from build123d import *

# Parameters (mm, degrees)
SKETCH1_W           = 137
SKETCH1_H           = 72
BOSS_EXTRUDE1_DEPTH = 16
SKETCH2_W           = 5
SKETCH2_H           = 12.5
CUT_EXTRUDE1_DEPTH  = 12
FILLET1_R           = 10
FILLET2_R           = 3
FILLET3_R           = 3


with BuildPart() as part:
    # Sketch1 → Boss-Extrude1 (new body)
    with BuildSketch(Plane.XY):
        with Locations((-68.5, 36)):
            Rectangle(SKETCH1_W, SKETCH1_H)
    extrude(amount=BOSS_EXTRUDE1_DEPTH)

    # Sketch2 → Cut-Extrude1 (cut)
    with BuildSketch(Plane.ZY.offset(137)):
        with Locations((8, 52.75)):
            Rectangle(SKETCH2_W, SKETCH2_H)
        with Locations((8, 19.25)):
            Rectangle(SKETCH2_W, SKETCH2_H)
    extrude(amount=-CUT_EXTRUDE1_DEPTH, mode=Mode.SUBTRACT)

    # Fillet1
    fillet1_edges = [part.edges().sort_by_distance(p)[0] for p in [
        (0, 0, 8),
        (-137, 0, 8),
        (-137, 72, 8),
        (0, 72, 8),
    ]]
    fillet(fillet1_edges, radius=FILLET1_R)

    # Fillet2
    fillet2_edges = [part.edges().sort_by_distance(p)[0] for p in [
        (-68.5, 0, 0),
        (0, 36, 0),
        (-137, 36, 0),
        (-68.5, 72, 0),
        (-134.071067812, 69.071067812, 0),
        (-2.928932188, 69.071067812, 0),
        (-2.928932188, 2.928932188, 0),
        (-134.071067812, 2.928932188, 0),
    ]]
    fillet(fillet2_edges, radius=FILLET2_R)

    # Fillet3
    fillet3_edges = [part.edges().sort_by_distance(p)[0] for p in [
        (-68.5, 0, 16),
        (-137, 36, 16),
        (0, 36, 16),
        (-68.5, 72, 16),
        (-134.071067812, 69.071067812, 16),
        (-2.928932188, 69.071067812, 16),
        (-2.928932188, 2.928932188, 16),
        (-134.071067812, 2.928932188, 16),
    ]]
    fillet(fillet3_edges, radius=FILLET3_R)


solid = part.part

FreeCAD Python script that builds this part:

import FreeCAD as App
import Part
import Sketcher


def edges_at(feature, points):
    """Names of the edges that pass closest to the given points."""
    edges = feature.Shape.Edges
    near = lambda p: min(range(len(edges)), key=lambda i: edges[i].distToShape(Part.Vertex(*p))[0])
    return sorted({f"Edge{near(p) + 1}" for p in points})

doc = App.newDocument("Part")
body = doc.addObject("PartDesign::Body", "Body")

# Sketch on XY plane
sketch1 = doc.addObject("Sketcher::SketchObject", "Sketch")
body.addObject(sketch1)
sketch1.AttachmentSupport = (doc.XY_Plane, [""])
sketch1.MapMode = "FlatFace"
sketch1.addGeometry(Part.LineSegment(App.Vector(-137, 72, 0), App.Vector(-137, 0, 0)), False)
sketch1.addGeometry(Part.LineSegment(App.Vector(-137, 0, 0), App.Vector(0, 0, 0)), False)
sketch1.addGeometry(Part.LineSegment(App.Vector(0, 0, 0), App.Vector(0, 72, 0)), False)
sketch1.addGeometry(Part.LineSegment(App.Vector(0, 72, 0), App.Vector(-137, 72, 0)), False)
sketch1.addConstraint(Sketcher.Constraint("Coincident", 0, 2, 1, 1))
sketch1.addConstraint(Sketcher.Constraint("Coincident", 1, 2, 2, 1))
sketch1.addConstraint(Sketcher.Constraint("Coincident", 2, 2, 3, 1))
sketch1.addConstraint(Sketcher.Constraint("Coincident", 3, 2, 0, 1))
sketch1.addConstraint(Sketcher.Constraint("Vertical", 0))
sketch1.addConstraint(Sketcher.Constraint("Horizontal", 1))
sketch1.addConstraint(Sketcher.Constraint("Vertical", 2))
sketch1.addConstraint(Sketcher.Constraint("Horizontal", 3))
sketch1.addConstraint(Sketcher.Constraint("Coincident", 1, 2, -1, 1))
sketch1.addConstraint(Sketcher.Constraint("DistanceX", 1, 1, 1, 2, 137.0))
sketch1.addConstraint(Sketcher.Constraint("DistanceY", 0, 2, 0, 1, 72.0))
pad1 = doc.addObject("PartDesign::Pad", "Pad")
body.addObject(pad1)
pad1.Profile = sketch1
pad1.Length = 16

# Sketch on YZ plane
sketch2 = doc.addObject("Sketcher::SketchObject", "Sketch001")
body.addObject(sketch2)
sketch2.AttachmentSupport = (doc.YZ_Plane, [""])
sketch2.MapMode = "FlatFace"
sketch2.AttachmentOffset = App.Placement(App.Vector(0, 0, -137), App.Rotation())
sketch2.addGeometry(Part.LineSegment(App.Vector(59, 5.5, 0), App.Vector(46.5, 5.5, 0)), False)
sketch2.addGeometry(Part.LineSegment(App.Vector(46.5, 5.5, 0), App.Vector(46.5, 10.5, 0)), False)
sketch2.addGeometry(Part.LineSegment(App.Vector(46.5, 10.5, 0), App.Vector(59, 10.5, 0)), False)
sketch2.addGeometry(Part.LineSegment(App.Vector(59, 10.5, 0), App.Vector(59, 5.5, 0)), False)
sketch2.addGeometry(Part.LineSegment(App.Vector(25.5, 5.5, 0), App.Vector(13, 5.5, 0)), False)
sketch2.addGeometry(Part.LineSegment(App.Vector(13, 5.5, 0), App.Vector(13, 10.5, 0)), False)
sketch2.addGeometry(Part.LineSegment(App.Vector(13, 10.5, 0), App.Vector(25.5, 10.5, 0)), False)
sketch2.addGeometry(Part.LineSegment(App.Vector(25.5, 10.5, 0), App.Vector(25.5, 5.5, 0)), False)
sketch2.addConstraint(Sketcher.Constraint("Coincident", 0, 2, 1, 1))
sketch2.addConstraint(Sketcher.Constraint("Coincident", 1, 2, 2, 1))
sketch2.addConstraint(Sketcher.Constraint("Coincident", 2, 2, 3, 1))
sketch2.addConstraint(Sketcher.Constraint("Coincident", 3, 2, 0, 1))
sketch2.addConstraint(Sketcher.Constraint("Coincident", 4, 2, 5, 1))
sketch2.addConstraint(Sketcher.Constraint("Coincident", 5, 2, 6, 1))
sketch2.addConstraint(Sketcher.Constraint("Coincident", 6, 2, 7, 1))
sketch2.addConstraint(Sketcher.Constraint("Coincident", 7, 2, 4, 1))
sketch2.addConstraint(Sketcher.Constraint("Horizontal", 0))
sketch2.addConstraint(Sketcher.Constraint("Vertical", 1))
sketch2.addConstraint(Sketcher.Constraint("Horizontal", 2))
sketch2.addConstraint(Sketcher.Constraint("Vertical", 3))
sketch2.addConstraint(Sketcher.Constraint("Horizontal", 4))
sketch2.addConstraint(Sketcher.Constraint("Vertical", 5))
sketch2.addConstraint(Sketcher.Constraint("Horizontal", 6))
sketch2.addConstraint(Sketcher.Constraint("Vertical", 7))
sketch2.addConstraint(Sketcher.Constraint("Horizontal", 3, 2, 4, 2))
sketch2.addConstraint(Sketcher.Constraint("Horizontal", 2, 2, 5, 2))
sketch2.addConstraint(Sketcher.Constraint("Equal", 2, 4))
sketch2.addConstraint(Sketcher.Constraint("DistanceY", 1, 1, 1, 2, 5.0))
sketch2.addConstraint(Sketcher.Constraint("DistanceX", 0, 2, 0, 1, 12.5))
sketch2.addConstraint(Sketcher.Constraint("DistanceX", -1, 1, 2, 2, 59.0))
sketch2.addConstraint(Sketcher.Constraint("DistanceX", -1, 1, 4, 2, 13.0))
sketch2.addConstraint(Sketcher.Constraint("DistanceY", -1, 1, 0, 2, 5.5))
pocket1 = doc.addObject("PartDesign::Pocket", "Pocket")
body.addObject(pocket1)
pocket1.Profile = sketch2
pocket1.Length = 12
pocket1.Reversed = True
doc.recompute()

fillet = doc.addObject("PartDesign::Fillet", "Fillet")
body.addObject(fillet)
fillet.Base = (pocket1, edges_at(pocket1, [
    (0, 0, 8),
    (-137, 0, 8),
    (-137, 72, 8),
    (0, 72, 8),
]))
fillet.Radius = 10
doc.recompute()

fillet2 = doc.addObject("PartDesign::Fillet", "Fillet001")
body.addObject(fillet2)
fillet2.Base = (fillet, edges_at(fillet, [
    (-68.5, 0, 0),
    (0, 36, 0),
    (-137, 36, 0),
    (-68.5, 72, 0),
    (-134.071, 69.071, 0),
    (-2.929, 69.071, 0),
    (-2.929, 2.929, 0),
    (-134.071, 2.929, 0),
]))
fillet2.Radius = 3
doc.recompute()

fillet3 = doc.addObject("PartDesign::Fillet", "Fillet002")
body.addObject(fillet3)
fillet3.Base = (fillet2, edges_at(fillet2, [
    (-68.5, 0, 16),
    (-137, 36, 16),
    (0, 36, 16),
    (-68.5, 72, 16),
    (-134.071, 69.071, 16),
    (-2.929, 69.071, 16),
    (-2.929, 2.929, 16),
    (-134.071, 2.929, 16),
]))
fillet3.Radius = 3

doc.recompute()
